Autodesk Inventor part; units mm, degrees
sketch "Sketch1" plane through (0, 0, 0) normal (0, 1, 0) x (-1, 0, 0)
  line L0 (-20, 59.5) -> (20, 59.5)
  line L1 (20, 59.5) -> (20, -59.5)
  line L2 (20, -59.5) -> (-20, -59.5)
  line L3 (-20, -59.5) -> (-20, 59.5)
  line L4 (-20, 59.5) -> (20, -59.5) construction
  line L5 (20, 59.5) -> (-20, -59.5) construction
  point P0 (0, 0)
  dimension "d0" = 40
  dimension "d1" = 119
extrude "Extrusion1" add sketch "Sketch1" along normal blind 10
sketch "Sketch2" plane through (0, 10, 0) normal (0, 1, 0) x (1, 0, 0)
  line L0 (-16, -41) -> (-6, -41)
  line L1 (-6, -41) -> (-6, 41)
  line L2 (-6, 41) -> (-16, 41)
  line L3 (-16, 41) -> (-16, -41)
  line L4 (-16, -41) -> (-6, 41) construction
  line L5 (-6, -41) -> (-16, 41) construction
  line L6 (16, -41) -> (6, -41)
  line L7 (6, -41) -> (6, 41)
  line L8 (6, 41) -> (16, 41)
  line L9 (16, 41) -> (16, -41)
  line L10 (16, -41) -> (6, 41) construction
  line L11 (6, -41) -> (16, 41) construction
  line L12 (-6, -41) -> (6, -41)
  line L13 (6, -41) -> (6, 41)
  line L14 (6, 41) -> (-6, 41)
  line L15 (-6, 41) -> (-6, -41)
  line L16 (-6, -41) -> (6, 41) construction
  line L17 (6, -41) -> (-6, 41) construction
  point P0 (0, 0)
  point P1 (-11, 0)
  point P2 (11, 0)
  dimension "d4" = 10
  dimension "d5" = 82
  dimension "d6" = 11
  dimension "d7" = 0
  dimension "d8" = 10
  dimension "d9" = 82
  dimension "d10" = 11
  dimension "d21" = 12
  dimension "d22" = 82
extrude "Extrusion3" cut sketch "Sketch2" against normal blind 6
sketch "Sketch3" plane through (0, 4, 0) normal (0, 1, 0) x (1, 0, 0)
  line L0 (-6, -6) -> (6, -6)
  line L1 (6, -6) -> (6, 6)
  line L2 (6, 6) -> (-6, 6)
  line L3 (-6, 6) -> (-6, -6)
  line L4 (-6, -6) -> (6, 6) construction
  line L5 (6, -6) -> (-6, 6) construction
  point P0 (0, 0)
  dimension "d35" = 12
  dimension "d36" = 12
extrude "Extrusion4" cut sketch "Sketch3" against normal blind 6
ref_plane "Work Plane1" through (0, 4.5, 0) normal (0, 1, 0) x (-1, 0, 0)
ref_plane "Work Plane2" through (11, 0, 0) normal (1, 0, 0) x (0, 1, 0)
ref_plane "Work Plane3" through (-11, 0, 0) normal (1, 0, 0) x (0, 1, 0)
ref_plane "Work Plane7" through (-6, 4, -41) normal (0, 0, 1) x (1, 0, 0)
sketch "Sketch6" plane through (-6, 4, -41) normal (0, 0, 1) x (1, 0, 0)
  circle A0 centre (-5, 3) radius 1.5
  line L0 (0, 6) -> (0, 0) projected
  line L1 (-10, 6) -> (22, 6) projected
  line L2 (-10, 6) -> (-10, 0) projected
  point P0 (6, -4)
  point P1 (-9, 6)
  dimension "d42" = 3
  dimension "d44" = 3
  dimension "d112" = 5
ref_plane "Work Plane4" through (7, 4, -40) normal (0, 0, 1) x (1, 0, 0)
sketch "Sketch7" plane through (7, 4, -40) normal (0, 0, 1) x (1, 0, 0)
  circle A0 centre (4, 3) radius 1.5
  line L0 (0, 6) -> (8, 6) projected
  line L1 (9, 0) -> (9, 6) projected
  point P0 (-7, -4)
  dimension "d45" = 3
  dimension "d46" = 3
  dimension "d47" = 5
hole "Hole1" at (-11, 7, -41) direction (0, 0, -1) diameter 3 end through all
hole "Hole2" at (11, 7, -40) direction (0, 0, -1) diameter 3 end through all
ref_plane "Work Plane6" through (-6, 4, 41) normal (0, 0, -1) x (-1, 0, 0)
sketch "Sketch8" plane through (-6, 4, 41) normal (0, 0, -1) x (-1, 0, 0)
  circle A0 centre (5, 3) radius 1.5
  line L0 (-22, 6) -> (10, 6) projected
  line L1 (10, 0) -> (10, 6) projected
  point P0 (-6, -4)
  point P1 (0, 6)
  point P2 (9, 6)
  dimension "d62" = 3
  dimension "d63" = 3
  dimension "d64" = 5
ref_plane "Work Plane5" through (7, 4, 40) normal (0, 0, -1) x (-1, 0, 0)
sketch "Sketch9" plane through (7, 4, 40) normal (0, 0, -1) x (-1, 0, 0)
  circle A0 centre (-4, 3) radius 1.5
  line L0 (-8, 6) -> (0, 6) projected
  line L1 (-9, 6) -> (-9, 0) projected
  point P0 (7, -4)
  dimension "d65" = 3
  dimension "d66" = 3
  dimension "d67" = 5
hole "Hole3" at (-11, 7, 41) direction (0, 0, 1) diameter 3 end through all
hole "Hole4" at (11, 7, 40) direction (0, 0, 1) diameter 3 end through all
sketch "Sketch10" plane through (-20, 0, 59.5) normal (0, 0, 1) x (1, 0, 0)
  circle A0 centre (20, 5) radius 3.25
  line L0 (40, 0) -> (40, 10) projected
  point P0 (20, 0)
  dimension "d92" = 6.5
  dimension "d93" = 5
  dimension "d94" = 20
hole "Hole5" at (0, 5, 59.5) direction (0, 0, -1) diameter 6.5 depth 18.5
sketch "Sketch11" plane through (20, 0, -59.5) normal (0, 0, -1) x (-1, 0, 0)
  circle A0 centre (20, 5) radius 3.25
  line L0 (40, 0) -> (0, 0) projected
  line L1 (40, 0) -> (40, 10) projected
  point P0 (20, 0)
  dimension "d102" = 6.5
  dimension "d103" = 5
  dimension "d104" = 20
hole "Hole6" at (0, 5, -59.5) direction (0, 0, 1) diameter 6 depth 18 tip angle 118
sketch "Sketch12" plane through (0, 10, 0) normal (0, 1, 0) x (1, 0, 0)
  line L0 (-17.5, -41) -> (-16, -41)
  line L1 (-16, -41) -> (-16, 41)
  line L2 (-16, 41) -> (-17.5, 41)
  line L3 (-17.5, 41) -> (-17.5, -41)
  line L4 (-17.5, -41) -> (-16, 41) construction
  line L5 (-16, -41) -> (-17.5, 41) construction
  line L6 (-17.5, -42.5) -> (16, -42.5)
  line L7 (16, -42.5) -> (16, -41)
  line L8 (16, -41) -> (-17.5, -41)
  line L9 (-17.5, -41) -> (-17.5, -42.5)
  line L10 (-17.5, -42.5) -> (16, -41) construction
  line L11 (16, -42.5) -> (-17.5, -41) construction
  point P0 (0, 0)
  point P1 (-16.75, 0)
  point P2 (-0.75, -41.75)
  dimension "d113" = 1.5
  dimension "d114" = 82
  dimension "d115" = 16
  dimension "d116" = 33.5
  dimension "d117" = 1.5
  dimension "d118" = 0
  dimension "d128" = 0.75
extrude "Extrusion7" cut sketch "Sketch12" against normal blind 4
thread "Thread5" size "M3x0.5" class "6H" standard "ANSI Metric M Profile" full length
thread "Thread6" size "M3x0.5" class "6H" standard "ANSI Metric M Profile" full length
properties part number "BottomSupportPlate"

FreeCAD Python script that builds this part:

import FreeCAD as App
import Part
import Sketcher

V = App.Vector
Q = App.Units.Quantity


def add_polygon(sketch, points):
    """Adds a closed chain of lines whose ends are joined by coincident constraints."""
    first, n = sketch.GeometryCount, len(points)
    for a, b in zip(points, points[1:] + points[:1]):
        sketch.addGeometry(Part.LineSegment(App.Vector(*a, 0), App.Vector(*b, 0)), False)
    for i in range(n):
        sketch.addConstraint(Sketcher.Constraint("Coincident", first + i, 2, first + (i + 1) % n, 1))

doc = App.newDocument("Part")
params = doc.addObject("Spreadsheet::Sheet", "Params")
for row, (alias, value) in enumerate([
    ("sketch1_width", "40 mm"),
    ("sketch1_height", "119 mm"),
    ("pad1_length", "10 mm"),
    ("sketch2_height", "82 mm"),
    ("sketch2_width", "32 mm"),
    ("pocket1_length", "6 mm"),
    ("sketch3_width", "12 mm"),
    ("pocket2_length", "6 mm"),
    ("sketch4_diameter", "3 mm"),
    ("hole_diameter", "3 mm"),
    ("sketch5_diameter", "3 mm"),
    ("hole2_diameter", "3 mm"),
    ("sketch6_diameter", "3 mm"),
    ("hole3_diameter", "3 mm"),
    ("sketch7_diameter", "3 mm"),
    ("hole4_diameter", "3 mm"),
    ("sketch8_diameter", "6.5 mm"),
    ("hole5_diameter", "6.5 mm"),
    ("hole5_depth", "18.5 mm"),
    ("sketch9_diameter", "6 mm"),
    ("hole6_diameter", "6 mm"),
    ("hole6_depth", "18 mm"),
    ("sketch10_height", "82 mm"),
    ("sketch10_width", "33.5 mm"),
    ("sketch10_width2", "1.5 mm"),
    ("pocket3_length", "4 mm"),
], start=1):
    params.set(f"A{row}", alias)
    params.set(f"B{row}", "=" + value)
    params.setAlias(f"B{row}", alias)

body = doc.addObject("PartDesign::Body", "Body")

sketch1 = body.newObject("Sketcher::SketchObject", "Sketch")
sketch1.AttachmentSupport = (doc.getObject("XZ_Plane"), [""])
sketch1.MapMode = "FlatFace"
add_polygon(sketch1, [(-20, 60), (20, 60), (20, -60), (-20, -60)])
sketch1.addConstraint([
    Sketcher.Constraint("Horizontal", 0),
    Sketcher.Constraint("Vertical", 1),
    Sketcher.Constraint("Horizontal", 2),
    Sketcher.Constraint("Vertical", 3),
    Sketcher.Constraint("Symmetric", 0, 2, 2, 2, -1, 1),
    Sketcher.Constraint("DistanceX", 0, 1, 0, 2, Q("40 mm")),
    Sketcher.Constraint("DistanceY", 1, 2, 1, 1, Q("119 mm")),
])
sketch1.setExpression("Constraints[9]", "Params.sketch1_width")
sketch1.setExpression("Constraints[10]", "Params.sketch1_height")
pad1 = body.newObject("PartDesign::Pad", "Pad")
pad1.Profile = sketch1
pad1.setExpression("Length", "Params.pad1_length")
pad1.Reversed = True

sketch2 = body.newObject("Sketcher::SketchObject", "Sketch001")
sketch2.AttachmentSupport = (doc.getObject("XZ_Plane"), [""])
sketch2.MapMode = "FlatFace"
sketch2.AttachmentOffset = App.Placement(V(0, 0, -10), App.Rotation())
add_polygon(sketch2, [(-16, -41), (-16, 41), (16, 41), (16, -41)])
sketch2.addConstraint([
    Sketcher.Constraint("Vertical", 0),
    Sketcher.Constraint("Horizontal", 1),
    Sketcher.Constraint("Vertical", 2),
    Sketcher.Constraint("Horizontal", 3),
    Sketcher.Constraint("Symmetric", 0, 2, 2, 2, -1, 1),
    Sketcher.Constraint("DistanceY", 0, 1, 0, 2, Q("82 mm")),
    Sketcher.Constraint("DistanceX", 1, 1, 1, 2, Q("32 mm")),
])
sketch2.setExpression("Constraints[9]", "Params.sketch2_height")
sketch2.setExpression("Constraints[10]", "Params.sketch2_width")
pocket1 = body.newObject("PartDesign::Pocket", "Pocket")
pocket1.Profile = sketch2
pocket1.setExpression("Length", "Params.pocket1_length")
pocket1.Reversed = True

sketch3 = body.newObject("Sketcher::SketchObject", "Sketch002")
sketch3.AttachmentSupport = (doc.getObject("XZ_Plane"), [""])
sketch3.MapMode = "FlatFace"
sketch3.AttachmentOffset = App.Placement(V(0, 0, -4), App.Rotation())
add_polygon(sketch3, [(-6, -6), (-6, 6), (6, 6), (6, -6)])
sketch3.addConstraint([
    Sketcher.Constraint("Vertical", 0),
    Sketcher.Constraint("Horizontal", 1),
    Sketcher.Constraint("Vertical", 2),
    Sketcher.Constraint("Horizontal", 3),
    Sketcher.Constraint("Symmetric", 0, 2, 2, 2, -1, 1),
    Sketcher.Constraint("Equal", 3, 0),
    Sketcher.Constraint("DistanceX", 1, 1, 1, 2, Q("12 mm")),
])
sketch3.setExpression("Constraints[10]", "Params.sketch3_width")
pocket2 = body.newObject("PartDesign::Pocket", "Pocket001")
pocket2.Profile = sketch3
pocket2.setExpression("Length", "Params.pocket2_length")
pocket2.Reversed = True

sketch4 = body.newObject("Sketcher::SketchObject", "Sketch003")
sketch4.AttachmentSupport = (doc.getObject("XY_Plane"), [""])
sketch4.MapMode = "FlatFace"
sketch4.AttachmentOffset = App.Placement(V(0, 0, -41), App.Rotation())
sketch4.addGeometry(Part.Circle(V(-11, 7, 0), V(0, 0, 1), 1.5), False)
sketch4.addConstraint([
    Sketcher.Constraint("Diameter", 0, Q("3 mm")),
    Sketcher.Constraint("DistanceX", 0, 3, -1, 1, Q("11 mm")),
    Sketcher.Constraint("DistanceY", -1, 1, 0, 3, Q("7 mm")),
])
sketch4.setExpression("Constraints[0]", "Params.sketch4_diameter")
doc.recompute()
hole = body.newObject("PartDesign::Hole", "Hole")
hole.Profile = sketch4
hole.ThreadType = "None"
hole.setExpression("Diameter", "Params.hole_diameter")
hole.DepthType = "ThroughAll"

sketch5 = body.newObject("Sketcher::SketchObject", "Sketch004")
sketch5.AttachmentSupport = (doc.getObject("XY_Plane"), [""])
sketch5.MapMode = "FlatFace"
sketch5.AttachmentOffset = App.Placement(V(0, 0, -40), App.Rotation())
sketch5.addGeometry(Part.Circle(V(11, 7, 0), V(0, 0, 1), 1.5), False)
sketch5.addConstraint([
    Sketcher.Constraint("Diameter", 0, Q("3 mm")),
    Sketcher.Constraint("DistanceX", -1, 1, 0, 3, Q("11 mm")),
    Sketcher.Constraint("DistanceY", -1, 1, 0, 3, Q("7 mm")),
])
sketch5.setExpression("Constraints[0]", "Params.sketch5_diameter")
doc.recompute()
hole2 = body.newObject("PartDesign::Hole", "Hole001")
hole2.Profile = sketch5
hole2.ThreadType = "None"
hole2.setExpression("Diameter", "Params.hole2_diameter")
hole2.DepthType = "ThroughAll"

sketch6 = body.newObject("Sketcher::SketchObject", "Sketch005")
sketch6.AttachmentSupport = (doc.getObject("XY_Plane"), [""])
sketch6.MapMode = "FlatFace"
sketch6.AttachmentOffset = App.Placement(V(0, 0, 41), App.Rotation())
sketch6.addGeometry(Part.Circle(V(-11, 7, 0), V(0, 0, 1), 1.5), False)
sketch6.addConstraint([
    Sketcher.Constraint("Diameter", 0, Q("3 mm")),
    Sketcher.Constraint("DistanceX", 0, 3, -1, 1, Q("11 mm")),
    Sketcher.Constraint("DistanceY", -1, 1, 0, 3, Q("7 mm")),
])
sketch6.setExpression("Constraints[0]", "Params.sketch6_diameter")
doc.recompute()
hole3 = body.newObject("PartDesign::Hole", "Hole002")
hole3.Profile = sketch6
hole3.ThreadType = "None"
hole3.setExpression("Diameter", "Params.hole3_diameter")
hole3.DepthType = "ThroughAll"
hole3.Reversed = True

sketch7 = body.newObject("Sketcher::SketchObject", "Sketch006")
sketch7.AttachmentSupport = (doc.getObject("XY_Plane"), [""])
sketch7.MapMode = "FlatFace"
sketch7.AttachmentOffset = App.Placement(V(0, 0, 40), App.Rotation())
sketch7.addGeometry(Part.Circle(V(11, 7, 0), V(0, 0, 1), 1.5), False)
sketch7.addConstraint([
    Sketcher.Constraint("Diameter", 0, Q("3 mm")),
    Sketcher.Constraint("DistanceX", -1, 1, 0, 3, Q("11 mm")),
    Sketcher.Constraint("DistanceY", -1, 1, 0, 3, Q("7 mm")),
])
sketch7.setExpression("Constraints[0]", "Params.sketch7_diameter")
doc.recompute()
hole4 = body.newObject("PartDesign::Hole", "Hole003")
hole4.Profile = sketch7
hole4.ThreadType = "None"
hole4.setExpression("Diameter", "Params.hole4_diameter")
hole4.DepthType = "ThroughAll"
hole4.Reversed = True

sketch8 = body.newObject("Sketcher::SketchObject", "Sketch007")
sketch8.AttachmentSupport = (doc.getObject("XY_Plane"), [""])
sketch8.MapMode = "FlatFace"
sketch8.AttachmentOffset = App.Placement(V(0, 0, 59.5), App.Rotation())
sketch8.addGeometry(Part.Circle(V(0, 5, 0), V(0, 0, 1), 3.2), False)
sketch8.addConstraint([
    Sketcher.Constraint("PointOnObject", 0, 3, -2),
    Sketcher.Constraint("Diameter", 0, Q("6.5 mm")),
    Sketcher.Constraint("DistanceY", -1, 1, 0, 3, Q("5 mm")),
])
sketch8.setExpression("Constraints[1]", "Params.sketch8_diameter")
doc.recompute()
hole5 = body.newObject("PartDesign::Hole", "Hole004")
hole5.Profile = sketch8
hole5.ThreadType = "None"
hole5.setExpression("Diameter", "Params.hole5_diameter")
hole5.DepthType = "Dimension"
hole5.setExpression("Depth", "Params.hole5_depth")
hole5.DrillPoint = "Flat"

sketch9 = body.newObject("Sketcher::SketchObject", "Sketch008")
sketch9.AttachmentSupport = (doc.getObject("XY_Plane"), [""])
sketch9.MapMode = "FlatFace"
sketch9.AttachmentOffset = App.Placement(V(0, 0, -59.5), App.Rotation())
sketch9.addGeometry(Part.Circle(V(0, 5, 0), V(0, 0, 1), 3), False)
sketch9.addConstraint([
    Sketcher.Constraint("PointOnObject", 0, 3, -2),
    Sketcher.Constraint("Diameter", 0, Q("6 mm")),
    Sketcher.Constraint("DistanceY", -1, 1, 0, 3, Q("5 mm")),
])
sketch9.setExpression("Constraints[1]", "Params.sketch9_diameter")
doc.recompute()
hole6 = body.newObject("PartDesign::Hole", "Hole005")
hole6.Profile = sketch9
hole6.ThreadType = "None"
hole6.setExpression("Diameter", "Params.hole6_diameter")
hole6.DepthType = "Dimension"
hole6.setExpression("Depth", "Params.hole6_depth")
hole6.DrillPoint = "Angled"
hole6.DrillPointAngle = 118
hole6.Reversed = True

sketch10 = body.newObject("Sketcher::SketchObject", "Sketch009")
sketch10.AttachmentSupport = (doc.getObject("XZ_Plane"), [""])
sketch10.MapMode = "FlatFace"
sketch10.AttachmentOffset = App.Placement(V(0, 0, -10), App.Rotation())
add_polygon(sketch10, [(-17.5, -41), (-17.5, 42.5), (16, 42.5), (16, 41), (-16, 41), (-16, -41)])
sketch10.addConstraint([
    Sketcher.Constraint("Vertical", 0),
    Sketcher.Constraint("Horizontal", 1),
    Sketcher.Constraint("Vertical", 2),
    Sketcher.Constraint("Horizontal", 3),
    Sketcher.Constraint("Vertical", 4),
    Sketcher.Constraint("Horizontal", 5),
    Sketcher.Constraint("Symmetric", 2, 2, 4, 2, -1, 1),
    Sketcher.Constraint("Equal", 5, 2),
    Sketcher.Constraint("DistanceY", 4, 2, 4, 1, Q("82 mm")),
    Sketcher.Constraint("DistanceX", 1, 1, 1, 2, Q("33.5 mm")),
    Sketcher.Constraint("DistanceX", 5, 2, 5, 1, Q("1.5 mm")),
])
sketch10.setExpression("Constraints[14]", "Params.sketch10_height")
sketch10.setExpression("Constraints[15]", "Params.sketch10_width")
sketch10.setExpression("Constraints[16]", "Params.sketch10_width2")
pocket3 = body.newObject("PartDesign::Pocket", "Pocket002")
pocket3.Profile = sketch10
pocket3.setExpression("Length", "Params.pocket3_length")
pocket3.Reversed = True

doc.recompute()
